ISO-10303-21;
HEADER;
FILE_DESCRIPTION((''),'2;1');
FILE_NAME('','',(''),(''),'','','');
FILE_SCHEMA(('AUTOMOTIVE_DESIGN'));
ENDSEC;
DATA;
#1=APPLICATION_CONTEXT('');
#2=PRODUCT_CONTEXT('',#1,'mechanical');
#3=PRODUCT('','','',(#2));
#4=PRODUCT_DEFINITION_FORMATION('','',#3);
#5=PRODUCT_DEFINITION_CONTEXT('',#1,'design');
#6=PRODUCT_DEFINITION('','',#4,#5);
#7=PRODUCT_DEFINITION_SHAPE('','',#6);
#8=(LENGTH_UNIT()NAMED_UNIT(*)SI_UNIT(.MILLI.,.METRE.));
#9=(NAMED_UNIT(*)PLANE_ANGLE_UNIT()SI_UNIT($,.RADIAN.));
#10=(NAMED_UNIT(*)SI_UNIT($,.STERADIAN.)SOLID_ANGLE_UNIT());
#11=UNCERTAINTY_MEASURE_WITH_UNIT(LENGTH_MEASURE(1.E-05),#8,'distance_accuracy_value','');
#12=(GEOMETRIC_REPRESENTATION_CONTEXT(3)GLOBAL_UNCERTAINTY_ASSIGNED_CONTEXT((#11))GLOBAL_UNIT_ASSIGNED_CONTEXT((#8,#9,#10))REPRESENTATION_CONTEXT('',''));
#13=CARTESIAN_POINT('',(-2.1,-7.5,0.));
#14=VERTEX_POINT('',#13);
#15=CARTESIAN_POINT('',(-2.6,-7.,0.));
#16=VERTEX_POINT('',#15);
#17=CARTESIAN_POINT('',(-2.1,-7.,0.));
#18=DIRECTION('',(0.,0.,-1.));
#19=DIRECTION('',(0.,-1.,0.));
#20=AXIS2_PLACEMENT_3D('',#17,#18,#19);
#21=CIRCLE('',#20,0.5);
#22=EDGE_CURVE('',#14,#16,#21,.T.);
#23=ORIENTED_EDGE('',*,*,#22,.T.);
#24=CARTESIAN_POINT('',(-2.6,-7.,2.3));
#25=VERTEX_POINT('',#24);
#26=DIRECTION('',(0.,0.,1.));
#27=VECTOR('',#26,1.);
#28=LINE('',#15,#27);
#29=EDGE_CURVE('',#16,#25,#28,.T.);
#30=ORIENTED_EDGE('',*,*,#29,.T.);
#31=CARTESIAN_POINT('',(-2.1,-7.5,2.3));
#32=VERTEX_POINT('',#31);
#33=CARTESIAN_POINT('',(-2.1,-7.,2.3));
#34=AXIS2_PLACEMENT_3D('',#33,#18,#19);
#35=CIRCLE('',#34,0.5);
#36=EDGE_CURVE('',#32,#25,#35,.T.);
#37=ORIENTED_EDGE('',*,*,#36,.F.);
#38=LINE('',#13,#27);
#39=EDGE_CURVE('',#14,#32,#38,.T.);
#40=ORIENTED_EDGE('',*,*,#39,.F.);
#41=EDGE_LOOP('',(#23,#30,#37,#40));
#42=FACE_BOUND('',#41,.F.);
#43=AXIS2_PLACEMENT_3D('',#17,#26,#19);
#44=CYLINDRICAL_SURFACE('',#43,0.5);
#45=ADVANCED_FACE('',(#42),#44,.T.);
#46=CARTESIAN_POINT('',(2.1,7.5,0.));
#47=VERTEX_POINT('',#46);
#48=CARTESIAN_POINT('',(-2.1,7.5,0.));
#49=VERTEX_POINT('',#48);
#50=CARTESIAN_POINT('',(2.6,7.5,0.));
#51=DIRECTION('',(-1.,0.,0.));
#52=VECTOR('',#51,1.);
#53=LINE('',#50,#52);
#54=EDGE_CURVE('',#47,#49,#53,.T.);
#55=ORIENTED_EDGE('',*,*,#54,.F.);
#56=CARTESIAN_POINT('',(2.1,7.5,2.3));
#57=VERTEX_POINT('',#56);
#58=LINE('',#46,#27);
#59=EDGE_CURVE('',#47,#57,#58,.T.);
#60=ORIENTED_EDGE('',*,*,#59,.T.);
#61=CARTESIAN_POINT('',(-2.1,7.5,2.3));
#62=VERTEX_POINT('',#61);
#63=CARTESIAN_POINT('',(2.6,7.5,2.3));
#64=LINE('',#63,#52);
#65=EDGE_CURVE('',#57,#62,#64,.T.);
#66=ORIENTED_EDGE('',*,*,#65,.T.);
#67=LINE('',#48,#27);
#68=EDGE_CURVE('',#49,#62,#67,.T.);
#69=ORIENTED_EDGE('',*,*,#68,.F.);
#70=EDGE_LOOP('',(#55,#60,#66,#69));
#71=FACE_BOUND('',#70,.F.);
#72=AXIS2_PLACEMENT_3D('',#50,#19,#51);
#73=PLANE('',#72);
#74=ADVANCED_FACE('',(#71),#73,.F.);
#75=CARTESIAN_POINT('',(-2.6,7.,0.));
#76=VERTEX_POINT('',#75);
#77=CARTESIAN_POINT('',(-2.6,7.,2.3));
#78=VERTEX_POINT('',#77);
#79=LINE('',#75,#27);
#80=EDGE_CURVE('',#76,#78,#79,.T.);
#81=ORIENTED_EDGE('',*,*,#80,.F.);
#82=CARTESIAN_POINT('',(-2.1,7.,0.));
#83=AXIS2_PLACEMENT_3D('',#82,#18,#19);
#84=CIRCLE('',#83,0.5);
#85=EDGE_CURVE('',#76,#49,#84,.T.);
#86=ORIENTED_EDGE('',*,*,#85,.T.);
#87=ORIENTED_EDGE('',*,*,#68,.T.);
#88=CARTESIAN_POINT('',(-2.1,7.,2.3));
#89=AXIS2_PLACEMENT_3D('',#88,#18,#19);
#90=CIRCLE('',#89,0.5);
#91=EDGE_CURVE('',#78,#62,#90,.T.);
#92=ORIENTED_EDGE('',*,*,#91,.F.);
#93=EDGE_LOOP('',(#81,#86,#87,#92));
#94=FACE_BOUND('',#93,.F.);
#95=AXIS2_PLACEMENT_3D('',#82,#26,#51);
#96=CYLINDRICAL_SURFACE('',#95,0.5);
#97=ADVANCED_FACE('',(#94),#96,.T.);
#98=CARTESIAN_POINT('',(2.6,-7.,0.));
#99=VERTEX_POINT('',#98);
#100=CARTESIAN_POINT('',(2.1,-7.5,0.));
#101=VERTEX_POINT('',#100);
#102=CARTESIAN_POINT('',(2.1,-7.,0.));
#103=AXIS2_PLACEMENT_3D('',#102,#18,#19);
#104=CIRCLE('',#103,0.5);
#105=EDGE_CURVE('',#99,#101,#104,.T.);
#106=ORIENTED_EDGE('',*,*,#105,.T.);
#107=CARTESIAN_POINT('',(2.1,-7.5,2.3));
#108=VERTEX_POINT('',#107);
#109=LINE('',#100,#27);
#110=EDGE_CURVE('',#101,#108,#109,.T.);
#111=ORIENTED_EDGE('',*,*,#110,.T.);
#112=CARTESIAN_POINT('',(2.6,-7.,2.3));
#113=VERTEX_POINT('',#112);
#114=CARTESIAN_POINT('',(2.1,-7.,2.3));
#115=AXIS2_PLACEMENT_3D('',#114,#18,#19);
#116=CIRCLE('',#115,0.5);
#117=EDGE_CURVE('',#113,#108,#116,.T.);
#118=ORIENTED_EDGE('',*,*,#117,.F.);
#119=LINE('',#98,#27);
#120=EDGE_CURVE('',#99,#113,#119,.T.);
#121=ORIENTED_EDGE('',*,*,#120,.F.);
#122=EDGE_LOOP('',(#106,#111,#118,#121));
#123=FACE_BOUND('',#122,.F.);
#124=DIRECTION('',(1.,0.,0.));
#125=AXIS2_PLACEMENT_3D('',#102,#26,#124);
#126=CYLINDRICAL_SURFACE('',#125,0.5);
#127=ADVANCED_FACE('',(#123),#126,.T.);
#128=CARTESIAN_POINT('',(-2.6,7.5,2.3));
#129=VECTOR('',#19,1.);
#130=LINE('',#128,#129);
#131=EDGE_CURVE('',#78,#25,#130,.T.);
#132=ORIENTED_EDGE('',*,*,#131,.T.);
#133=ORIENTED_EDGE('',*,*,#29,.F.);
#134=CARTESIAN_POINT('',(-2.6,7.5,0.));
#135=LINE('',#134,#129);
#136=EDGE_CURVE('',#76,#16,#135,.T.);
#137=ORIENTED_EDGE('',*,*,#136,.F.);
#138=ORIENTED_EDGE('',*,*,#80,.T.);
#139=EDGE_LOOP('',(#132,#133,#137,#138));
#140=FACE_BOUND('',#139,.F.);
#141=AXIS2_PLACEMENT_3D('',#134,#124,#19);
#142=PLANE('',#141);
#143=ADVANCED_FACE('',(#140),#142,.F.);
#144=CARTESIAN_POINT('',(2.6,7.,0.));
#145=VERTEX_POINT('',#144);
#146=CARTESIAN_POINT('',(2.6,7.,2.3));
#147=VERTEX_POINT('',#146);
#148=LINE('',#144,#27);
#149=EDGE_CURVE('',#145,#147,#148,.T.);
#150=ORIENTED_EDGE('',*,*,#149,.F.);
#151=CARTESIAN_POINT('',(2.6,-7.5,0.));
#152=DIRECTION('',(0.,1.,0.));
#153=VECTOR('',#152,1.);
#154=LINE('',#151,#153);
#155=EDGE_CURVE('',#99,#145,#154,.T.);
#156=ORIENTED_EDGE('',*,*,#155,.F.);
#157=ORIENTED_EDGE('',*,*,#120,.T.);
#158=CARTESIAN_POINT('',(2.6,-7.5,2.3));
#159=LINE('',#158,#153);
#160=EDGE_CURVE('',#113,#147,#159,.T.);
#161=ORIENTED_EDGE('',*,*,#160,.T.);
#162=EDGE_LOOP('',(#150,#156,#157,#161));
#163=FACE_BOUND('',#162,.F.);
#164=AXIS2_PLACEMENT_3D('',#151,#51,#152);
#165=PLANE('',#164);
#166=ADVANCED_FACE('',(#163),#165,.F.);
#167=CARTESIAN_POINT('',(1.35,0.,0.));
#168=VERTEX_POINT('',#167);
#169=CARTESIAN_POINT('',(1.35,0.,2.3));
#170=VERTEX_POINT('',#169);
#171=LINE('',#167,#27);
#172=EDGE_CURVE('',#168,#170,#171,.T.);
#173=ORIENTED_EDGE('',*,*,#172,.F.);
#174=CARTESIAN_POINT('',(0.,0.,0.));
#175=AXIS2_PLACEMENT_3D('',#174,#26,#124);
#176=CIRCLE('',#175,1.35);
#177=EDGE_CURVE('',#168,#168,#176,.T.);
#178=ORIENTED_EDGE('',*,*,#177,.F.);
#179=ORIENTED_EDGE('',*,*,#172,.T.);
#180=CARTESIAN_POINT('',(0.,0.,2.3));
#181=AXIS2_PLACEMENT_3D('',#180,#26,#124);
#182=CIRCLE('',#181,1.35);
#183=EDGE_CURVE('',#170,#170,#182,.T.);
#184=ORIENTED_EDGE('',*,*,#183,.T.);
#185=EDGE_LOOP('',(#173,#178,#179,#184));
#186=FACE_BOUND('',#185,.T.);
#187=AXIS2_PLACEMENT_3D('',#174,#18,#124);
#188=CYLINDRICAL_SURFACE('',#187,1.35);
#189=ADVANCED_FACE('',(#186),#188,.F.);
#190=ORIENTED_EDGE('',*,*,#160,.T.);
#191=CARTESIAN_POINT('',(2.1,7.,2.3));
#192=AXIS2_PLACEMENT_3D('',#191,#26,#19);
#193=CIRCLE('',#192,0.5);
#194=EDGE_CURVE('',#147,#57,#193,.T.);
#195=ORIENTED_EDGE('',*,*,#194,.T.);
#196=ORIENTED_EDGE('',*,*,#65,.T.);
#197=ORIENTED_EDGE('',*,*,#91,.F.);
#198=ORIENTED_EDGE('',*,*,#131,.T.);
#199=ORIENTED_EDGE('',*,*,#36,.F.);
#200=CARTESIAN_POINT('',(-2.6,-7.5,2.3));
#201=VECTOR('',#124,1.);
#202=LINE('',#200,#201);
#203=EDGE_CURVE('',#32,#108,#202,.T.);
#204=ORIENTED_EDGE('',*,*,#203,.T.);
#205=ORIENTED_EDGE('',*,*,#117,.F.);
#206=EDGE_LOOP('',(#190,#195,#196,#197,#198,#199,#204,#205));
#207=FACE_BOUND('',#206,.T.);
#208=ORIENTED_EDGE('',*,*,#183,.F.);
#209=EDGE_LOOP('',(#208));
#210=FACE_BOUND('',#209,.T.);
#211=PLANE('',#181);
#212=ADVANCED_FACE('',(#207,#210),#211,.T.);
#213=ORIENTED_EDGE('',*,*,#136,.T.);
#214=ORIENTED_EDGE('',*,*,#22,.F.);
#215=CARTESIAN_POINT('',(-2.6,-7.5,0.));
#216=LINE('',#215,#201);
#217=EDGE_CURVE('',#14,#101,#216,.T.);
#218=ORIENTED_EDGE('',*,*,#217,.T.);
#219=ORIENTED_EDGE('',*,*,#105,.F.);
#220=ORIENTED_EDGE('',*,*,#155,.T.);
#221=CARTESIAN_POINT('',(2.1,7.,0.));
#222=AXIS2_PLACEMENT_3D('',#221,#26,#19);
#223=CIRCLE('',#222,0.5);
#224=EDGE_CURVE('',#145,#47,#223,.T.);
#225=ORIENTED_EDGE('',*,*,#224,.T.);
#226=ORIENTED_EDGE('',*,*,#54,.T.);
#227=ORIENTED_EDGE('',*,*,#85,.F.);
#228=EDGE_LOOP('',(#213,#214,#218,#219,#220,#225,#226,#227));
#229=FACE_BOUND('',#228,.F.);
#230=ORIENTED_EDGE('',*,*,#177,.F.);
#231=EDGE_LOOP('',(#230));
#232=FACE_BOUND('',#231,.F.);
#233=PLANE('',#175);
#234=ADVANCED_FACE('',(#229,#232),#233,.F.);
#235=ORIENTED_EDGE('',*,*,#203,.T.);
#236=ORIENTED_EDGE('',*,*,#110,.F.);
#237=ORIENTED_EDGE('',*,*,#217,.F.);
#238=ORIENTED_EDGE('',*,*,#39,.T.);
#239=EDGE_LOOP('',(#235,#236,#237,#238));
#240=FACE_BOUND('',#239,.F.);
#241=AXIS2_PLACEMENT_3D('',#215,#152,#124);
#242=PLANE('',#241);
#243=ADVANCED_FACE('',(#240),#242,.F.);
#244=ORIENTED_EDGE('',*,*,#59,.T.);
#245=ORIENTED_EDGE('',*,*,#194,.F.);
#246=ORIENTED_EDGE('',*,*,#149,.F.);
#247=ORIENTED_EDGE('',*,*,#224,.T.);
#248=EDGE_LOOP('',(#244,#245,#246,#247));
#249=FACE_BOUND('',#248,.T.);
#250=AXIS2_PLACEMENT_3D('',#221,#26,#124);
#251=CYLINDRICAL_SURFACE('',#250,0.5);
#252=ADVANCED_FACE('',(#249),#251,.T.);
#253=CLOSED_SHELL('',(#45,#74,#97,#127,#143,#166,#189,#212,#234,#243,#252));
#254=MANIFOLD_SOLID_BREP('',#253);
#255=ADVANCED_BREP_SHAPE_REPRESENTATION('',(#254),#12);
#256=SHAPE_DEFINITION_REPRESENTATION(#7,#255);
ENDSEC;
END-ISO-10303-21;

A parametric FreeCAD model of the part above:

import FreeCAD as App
import Part
import Sketcher
from FreeCAD import Vector
Q = App.Units.Quantity


def edges_at(feature, points):
    """Names of the edges that pass closest to the given points."""
    edges = feature.Shape.Edges
    near = lambda p: min(range(len(edges)), key=lambda i: edges[i].distToShape(Part.Vertex(*p))[0])
    return sorted({f"Edge{near(p) + 1}" for p in points})


def add_polygon(sketch, points):
    """Adds a closed chain of lines whose ends are joined by coincident constraints."""
    first, n = sketch.GeometryCount, len(points)
    for a, b in zip(points, points[1:] + points[:1]):
        sketch.addGeometry(Part.LineSegment(App.Vector(*a, 0), App.Vector(*b, 0)), False)
    for i in range(n):
        sketch.addConstraint(Sketcher.Constraint("Coincident", first + i, 2, first + (i + 1) % n, 1))

doc = App.newDocument("Part")
body = doc.addObject("PartDesign::Body", "Body")

# Sketch on XY plane
sketch1 = body.newObject("Sketcher::SketchObject", "Sketch")
sketch1.AttachmentSupport = (doc.getObject("XY_Plane"), [""])
sketch1.MapMode = "FlatFace"
add_polygon(sketch1, [(2.6, -7.5), (2.6, 7.5), (-2.6, 7.5), (-2.6, -7.5)])  # lines 0-3
sketch1.addGeometry(Part.Circle(Vector(0, 0, 0), Vector(0, 0, 1), 1.35), False)  # 4
sketch1.addConstraint([
    Sketcher.Constraint("Vertical", 0),
    Sketcher.Constraint("Horizontal", 1),
    Sketcher.Constraint("Vertical", 2),
    Sketcher.Constraint("Horizontal", 3),
    Sketcher.Constraint("Coincident", 4, 3, -1, 1),
    Sketcher.Constraint("Symmetric", 0, 2, 2, 2, -1, 1),
    Sketcher.Constraint("Diameter", 4, Q("2.7 mm")),
    Sketcher.Constraint("DistanceY", 0, 1, 0, 2, Q("15 mm")),
    Sketcher.Constraint("DistanceX", 1, 2, 1, 1, Q("5.2 mm")),
])
pad1 = body.newObject("PartDesign::Pad", "Pad")
pad1.Profile = sketch1
pad1.Length = 2.3
doc.recompute()

fillet = body.newObject("PartDesign::Fillet", "Fillet")
fillet.Base = (pad1, edges_at(pad1, [
    (2.6, 7.5, 1.15),
    (-2.6, 7.5, 1.15),
    (-2.6, -7.5, 1.15),
    (2.6, -7.5, 1.15),
]))
fillet.Radius = 0.5

doc.recompute()
